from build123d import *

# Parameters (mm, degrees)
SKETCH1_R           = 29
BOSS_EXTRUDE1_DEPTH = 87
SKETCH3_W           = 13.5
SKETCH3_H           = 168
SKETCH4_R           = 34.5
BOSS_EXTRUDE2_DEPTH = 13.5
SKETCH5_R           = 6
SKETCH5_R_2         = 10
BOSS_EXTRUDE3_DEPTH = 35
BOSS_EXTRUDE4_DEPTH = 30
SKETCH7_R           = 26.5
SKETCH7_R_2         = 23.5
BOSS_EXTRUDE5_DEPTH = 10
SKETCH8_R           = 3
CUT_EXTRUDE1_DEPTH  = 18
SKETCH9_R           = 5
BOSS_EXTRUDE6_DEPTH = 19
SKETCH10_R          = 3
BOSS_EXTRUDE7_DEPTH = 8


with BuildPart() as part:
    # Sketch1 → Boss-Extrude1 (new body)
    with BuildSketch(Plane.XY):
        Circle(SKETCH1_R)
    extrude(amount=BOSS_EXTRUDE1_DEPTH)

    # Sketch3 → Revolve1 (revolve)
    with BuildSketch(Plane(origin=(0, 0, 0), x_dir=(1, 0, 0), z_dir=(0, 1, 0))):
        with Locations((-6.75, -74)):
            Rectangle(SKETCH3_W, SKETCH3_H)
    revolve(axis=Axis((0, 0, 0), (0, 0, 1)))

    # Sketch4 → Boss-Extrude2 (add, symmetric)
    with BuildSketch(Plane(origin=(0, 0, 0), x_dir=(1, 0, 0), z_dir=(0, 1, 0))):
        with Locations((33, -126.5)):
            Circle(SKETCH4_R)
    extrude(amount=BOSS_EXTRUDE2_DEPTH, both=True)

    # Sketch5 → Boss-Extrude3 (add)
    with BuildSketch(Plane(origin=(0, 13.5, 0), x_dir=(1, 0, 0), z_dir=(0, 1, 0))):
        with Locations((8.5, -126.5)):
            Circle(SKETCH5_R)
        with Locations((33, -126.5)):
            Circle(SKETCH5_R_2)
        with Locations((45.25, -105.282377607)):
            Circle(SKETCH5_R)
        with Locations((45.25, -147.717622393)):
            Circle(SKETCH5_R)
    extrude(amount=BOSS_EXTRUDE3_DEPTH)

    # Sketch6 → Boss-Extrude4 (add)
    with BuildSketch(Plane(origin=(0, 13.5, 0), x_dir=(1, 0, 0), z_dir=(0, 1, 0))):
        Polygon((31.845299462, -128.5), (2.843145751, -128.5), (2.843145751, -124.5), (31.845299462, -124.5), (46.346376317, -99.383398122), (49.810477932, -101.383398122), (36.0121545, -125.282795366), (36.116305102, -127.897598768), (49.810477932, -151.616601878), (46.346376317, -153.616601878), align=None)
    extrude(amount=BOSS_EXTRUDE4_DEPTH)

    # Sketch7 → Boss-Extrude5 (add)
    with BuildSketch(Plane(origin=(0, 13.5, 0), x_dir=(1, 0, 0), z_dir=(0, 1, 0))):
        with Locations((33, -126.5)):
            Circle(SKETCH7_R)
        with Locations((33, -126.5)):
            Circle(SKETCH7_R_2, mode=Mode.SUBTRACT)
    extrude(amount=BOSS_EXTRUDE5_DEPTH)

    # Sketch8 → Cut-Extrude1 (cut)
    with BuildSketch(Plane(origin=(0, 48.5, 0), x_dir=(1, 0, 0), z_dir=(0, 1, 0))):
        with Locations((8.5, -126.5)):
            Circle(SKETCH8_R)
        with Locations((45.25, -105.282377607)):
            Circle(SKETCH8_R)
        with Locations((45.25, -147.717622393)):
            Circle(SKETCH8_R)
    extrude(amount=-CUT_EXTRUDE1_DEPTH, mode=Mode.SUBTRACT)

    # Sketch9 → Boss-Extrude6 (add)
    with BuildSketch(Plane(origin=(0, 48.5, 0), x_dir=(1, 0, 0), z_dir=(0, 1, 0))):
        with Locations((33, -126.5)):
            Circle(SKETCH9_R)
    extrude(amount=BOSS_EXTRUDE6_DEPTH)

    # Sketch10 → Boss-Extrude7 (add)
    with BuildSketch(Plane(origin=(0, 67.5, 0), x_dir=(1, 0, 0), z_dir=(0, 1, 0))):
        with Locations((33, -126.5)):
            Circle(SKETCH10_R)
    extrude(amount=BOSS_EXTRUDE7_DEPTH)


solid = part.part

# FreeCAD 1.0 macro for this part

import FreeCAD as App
import Part
import Sketcher
from FreeCAD import Vector
Q = App.Units.Quantity


def add_polygon(sketch, points):
    """Adds a closed chain of lines whose ends are joined by coincident constraints."""
    first, n = sketch.GeometryCount, len(points)
    for a, b in zip(points, points[1:] + points[:1]):
        sketch.addGeometry(Part.LineSegment(App.Vector(*a, 0), App.Vector(*b, 0)), False)
    for i in range(n):
        sketch.addConstraint(Sketcher.Constraint("Coincident", first + i, 2, first + (i + 1) % n, 1))

doc = App.newDocument("Part")
body = doc.addObject("PartDesign::Body", "Body")

# Sketch on XY plane
sketch1 = body.newObject("Sketcher::SketchObject", "Sketch")
sketch1.AttachmentSupport = (doc.getObject("XY_Plane"), [""])
sketch1.MapMode = "FlatFace"
sketch1.addGeometry(Part.Circle(Vector(0, 0, 0), Vector(0, 0, 1), 29), False)
sketch1.addConstraint([
    Sketcher.Constraint("Coincident", 0, 3, -1, 1),
    Sketcher.Constraint("Diameter", 0, 58.0),
])
pad1 = body.newObject("PartDesign::Pad", "Pad")
pad1.Profile = sketch1
pad1.Length = 87

# Sketch on XZ plane
sketch2 = body.newObject("Sketcher::SketchObject", "Sketch001")
sketch2.AttachmentSupport = (doc.getObject("XZ_Plane"), [""])
sketch2.MapMode = "FlatFace"
add_polygon(sketch2, [(-13.5, -10), (-13.5, 158), (0, 158), (0, -10)])  # lines 0-3
sketch2.addConstraint([
    Sketcher.Constraint("Vertical", 0),
    Sketcher.Constraint("Horizontal", 1),
    Sketcher.Constraint("Vertical", 2),
    Sketcher.Constraint("Horizontal", 3),
    Sketcher.Constraint("PointOnObject", 1, 2, -2),
    Sketcher.Constraint("DistanceY", 0, 1, 0, 2, 168.0),
    Sketcher.Constraint("DistanceX", 1, 1, 1, 2, 13.5),
    Sketcher.Constraint("DistanceY", -1, 1, 0, 2, 158.0),
])
revolution = body.newObject("PartDesign::Revolution", "Revolution")
revolution.Profile = sketch2
revolution.ReferenceAxis = (sketch2, ["V_Axis"])
revolution.Angle = 360

# Sketch on XZ plane
sketch3 = body.newObject("Sketcher::SketchObject", "Sketch002")
sketch3.AttachmentSupport = (doc.getObject("XZ_Plane"), [""])
sketch3.MapMode = "FlatFace"
sketch3.addGeometry(Part.Circle(Vector(33, 126.5, 0), Vector(0, 0, 1), 34.5), False)
sketch3.addConstraint([
    Sketcher.Constraint("Diameter", 0, 69.0),
    Sketcher.Constraint("DistanceX", -1, 1, 0, 3, 33.0),
    Sketcher.Constraint("DistanceY", -1, 1, 0, 3, 126.5),
])
pad2 = body.newObject("PartDesign::Pad", "Pad001")
pad2.Profile = sketch3
pad2.Length = 27
pad2.Midplane = True

# Sketch on XZ plane
sketch4 = body.newObject("Sketcher::SketchObject", "Sketch003")
sketch4.AttachmentSupport = (doc.getObject("XZ_Plane"), [""])
sketch4.MapMode = "FlatFace"
sketch4.AttachmentOffset = App.Placement(Vector(0, 0, -13.5), App.Rotation())
sketch4.addGeometry([
    Part.Circle(Vector(8.5, 126.5, 0), Vector(0, 0, 1), 6),
    Part.Circle(Vector(33, 126.5, 0), Vector(0, 0, 1), 10),
    Part.Circle(Vector(45.25, 105.282378, 0), Vector(0, 0, 1), 6),
    Part.Circle(Vector(45.25, 147.717622, 0), Vector(0, 0, 1), 6),
], False)
sketch4.addConstraint([
    Sketcher.Constraint("Equal", 0, 2),
    Sketcher.Constraint("Equal", 2, 3),
    Sketcher.Constraint("Horizontal", 0, 3, 1, 3),
    Sketcher.Constraint("Vertical", 2, 3, 3, 3),
    Sketcher.Constraint("Diameter", 0, 12.0),
    Sketcher.Constraint("Diameter", 1, 20.0),
    Sketcher.Constraint("DistanceX", -1, 1, 1, 3, 33.0),
    Sketcher.Constraint("DistanceX", -1, 1, 0, 3, 8.5),
    Sketcher.Constraint("DistanceY", -1, 1, 0, 3, 126.5),
    Sketcher.Constraint("DistanceX", -1, 1, 2, 3, 45.25),
    Sketcher.Constraint("DistanceY", -1, 1, 2, 3, 105.282378),
    Sketcher.Constraint("DistanceY", -1, 1, 3, 3, 147.717622),
])
pad3 = body.newObject("PartDesign::Pad", "Pad002")
pad3.Profile = sketch4
pad3.Length = 35
pad3.Reversed = True

# Sketch on XZ plane
sketch5 = body.newObject("Sketcher::SketchObject", "Sketch004")
sketch5.AttachmentSupport = (doc.getObject("XZ_Plane"), [""])
sketch5.MapMode = "FlatFace"
sketch5.AttachmentOffset = App.Placement(Vector(0, 0, -13.5), App.Rotation())
add_polygon(sketch5, [(2.843146, 128.5), (31.845299, 128.5), (46.346376, 153.616602), (49.810478, 151.616602), (36.116305, 127.897599), (36.012155, 125.282795), (49.810478, 101.383398), (46.346376, 99.383398), (31.845299, 124.5), (2.843146, 124.5)])  # lines 0-9
sketch5.addConstraint([
    Sketcher.Constraint("Horizontal", 0),
    Sketcher.Constraint("Horizontal", 8),
    Sketcher.Constraint("Vertical", 9),
    Sketcher.Constraint("Perpendicular", 1, 2),
    Sketcher.Constraint("Perpendicular", 2, 3),
    Sketcher.Constraint("Perpendicular", 5, 6),
    Sketcher.Constraint("Perpendicular", 6, 7),
    Sketcher.Constraint("Vertical", 2, 2, 5, 2),
    Sketcher.Constraint("Vertical", 1, 2, 6, 2),
    Sketcher.Constraint("Vertical", 0, 2, 7, 2),
    Sketcher.Constraint("Equal", 2, 6),
    Sketcher.Constraint("DistanceY", 9, 1, 9, 2, 4.0),
    Sketcher.Constraint("Angle", 1, Q("60 deg")),
    Sketcher.Constraint("Distance", 2, 4.0),
    Sketcher.Constraint("DistanceY", -1, 1, 0, 2, 128.5),
    Sketcher.Constraint("DistanceX", -1, 1, 0, 2, 31.845299),
    Sketcher.Constraint("DistanceY", -1, 1, 1, 2, 153.616602),
    Sketcher.Constraint("DistanceY", -1, 1, 3, 2, 127.897599),
    Sketcher.Constraint("DistanceX", 0, 1, 0, 2, 29.002154),
    Sketcher.Constraint("DistanceX", 4, 2, 3, 2, 0.104151),
])
pad4 = body.newObject("PartDesign::Pad", "Pad003")
pad4.Profile = sketch5
pad4.Length = 30
pad4.Reversed = True

# Sketch on XZ plane
sketch6 = body.newObject("Sketcher::SketchObject", "Sketch005")
sketch6.AttachmentSupport = (doc.getObject("XZ_Plane"), [""])
sketch6.MapMode = "FlatFace"
sketch6.AttachmentOffset = App.Placement(Vector(0, 0, -13.5), App.Rotation())
sketch6.addGeometry([
    Part.Circle(Vector(33, 126.5, 0), Vector(0, 0, 1), 26.5),
    Part.Circle(Vector(33, 126.5, 0), Vector(0, 0, 1), 23.5),
], False)
sketch6.addConstraint([
    Sketcher.Constraint("Coincident", 1, 3, 0, 3),
    Sketcher.Constraint("Diameter", 0, 53.0),
    Sketcher.Constraint("Diameter", 1, 47.0),
    Sketcher.Constraint("DistanceX", -1, 1, 0, 3, 33.0),
    Sketcher.Constraint("DistanceY", -1, 1, 0, 3, 126.5),
])
pad5 = body.newObject("PartDesign::Pad", "Pad004")
pad5.Profile = sketch6
pad5.Length = 10
pad5.Reversed = True

# Sketch on XZ plane
sketch7 = body.newObject("Sketcher::SketchObject", "Sketch006")
sketch7.AttachmentSupport = (doc.getObject("XZ_Plane"), [""])
sketch7.MapMode = "FlatFace"
sketch7.AttachmentOffset = App.Placement(Vector(0, 0, -48.5), App.Rotation())
sketch7.addGeometry([
    Part.Circle(Vector(8.5, 126.5, 0), Vector(0, 0, 1), 3),
    Part.Circle(Vector(45.25, 105.282378, 0), Vector(0, 0, 1), 3),
    Part.Circle(Vector(45.25, 147.717622, 0), Vector(0, 0, 1), 3),
], False)
sketch7.addConstraint([
    Sketcher.Constraint("Equal", 0, 1),
    Sketcher.Constraint("Equal", 1, 2),
    Sketcher.Constraint("Vertical", 1, 3, 2, 3),
    Sketcher.Constraint("Diameter", 0, 6.0),
    Sketcher.Constraint("DistanceX", -1, 1, 0, 3, 8.5),
    Sketcher.Constraint("DistanceY", -1, 1, 0, 3, 126.5),
    Sketcher.Constraint("DistanceX", -1, 1, 1, 3, 45.25),
    Sketcher.Constraint("DistanceY", -1, 1, 1, 3, 105.282378),
    Sketcher.Constraint("DistanceY", -1, 1, 2, 3, 147.717622),
])
pocket1 = body.newObject("PartDesign::Pocket", "Pocket")
pocket1.Profile = sketch7
pocket1.Length = 18
pocket1.Reversed = True

# Sketch on XZ plane
sketch8 = body.newObject("Sketcher::SketchObject", "Sketch007")
sketch8.AttachmentSupport = (doc.getObject("XZ_Plane"), [""])
sketch8.MapMode = "FlatFace"
sketch8.AttachmentOffset = App.Placement(Vector(0, 0, -48.5), App.Rotation())
sketch8.addGeometry(Part.Circle(Vector(33, 126.5, 0), Vector(0, 0, 1), 5), False)
sketch8.addConstraint([
    Sketcher.Constraint("Diameter", 0, 10.0),
    Sketcher.Constraint("DistanceX", -1, 1, 0, 3, 33.0),
    Sketcher.Constraint("DistanceY", -1, 1, 0, 3, 126.5),
])
pad6 = body.newObject("PartDesign::Pad", "Pad005")
pad6.Profile = sketch8
pad6.Length = 19
pad6.Reversed = True

# Sketch on XZ plane
sketch9 = body.newObject("Sketcher::SketchObject", "Sketch008")
sketch9.AttachmentSupport = (doc.getObject("XZ_Plane"), [""])
sketch9.MapMode = "FlatFace"
sketch9.AttachmentOffset = App.Placement(Vector(0, 0, -67.5), App.Rotation())
sketch9.addGeometry(Part.Circle(Vector(33, 126.5, 0), Vector(0, 0, 1), 3), False)
sketch9.addConstraint([
    Sketcher.Constraint("Diameter", 0, 6.0),
    Sketcher.Constraint("DistanceX", -1, 1, 0, 3, 33.0),
    Sketcher.Constraint("DistanceY", -1, 1, 0, 3, 126.5),
])
pad7 = body.newObject("PartDesign::Pad", "Pad006")
pad7.Profile = sketch9
pad7.Length = 8
pad7.Reversed = True

doc.recompute()
